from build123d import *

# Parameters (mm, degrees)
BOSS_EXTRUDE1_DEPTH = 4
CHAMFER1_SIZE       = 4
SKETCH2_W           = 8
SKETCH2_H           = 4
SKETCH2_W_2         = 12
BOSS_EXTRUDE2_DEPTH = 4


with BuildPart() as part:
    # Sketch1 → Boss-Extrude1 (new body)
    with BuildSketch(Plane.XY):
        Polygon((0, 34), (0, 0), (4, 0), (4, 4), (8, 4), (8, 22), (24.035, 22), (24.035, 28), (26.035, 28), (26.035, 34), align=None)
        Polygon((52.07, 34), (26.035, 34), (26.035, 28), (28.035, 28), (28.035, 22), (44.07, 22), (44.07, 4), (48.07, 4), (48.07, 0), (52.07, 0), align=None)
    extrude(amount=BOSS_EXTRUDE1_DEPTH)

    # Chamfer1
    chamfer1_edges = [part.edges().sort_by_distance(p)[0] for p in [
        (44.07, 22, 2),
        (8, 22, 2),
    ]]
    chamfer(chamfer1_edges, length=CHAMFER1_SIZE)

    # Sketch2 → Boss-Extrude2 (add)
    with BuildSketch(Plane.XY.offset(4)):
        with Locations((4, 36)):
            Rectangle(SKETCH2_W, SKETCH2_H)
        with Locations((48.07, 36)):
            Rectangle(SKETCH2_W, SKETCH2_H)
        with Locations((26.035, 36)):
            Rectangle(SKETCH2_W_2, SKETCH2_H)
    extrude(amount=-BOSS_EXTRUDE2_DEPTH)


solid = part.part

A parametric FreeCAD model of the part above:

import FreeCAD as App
import Part
import Sketcher


def edges_at(feature, points):
    """Names of the edges that pass closest to the given points."""
    edges = feature.Shape.Edges
    near = lambda p: min(range(len(edges)), key=lambda i: edges[i].distToShape(Part.Vertex(*p))[0])
    return sorted({f"Edge{near(p) + 1}" for p in points})

doc = App.newDocument("Part")
body = doc.addObject("PartDesign::Body", "Body")

sketch1 = body.newObject("Sketcher::SketchObject", "Sketch")
sketch1.AttachmentSupport = (doc.getObject("XY_Plane"), [""])
sketch1.MapMode = "FlatFace"
sketch1.addGeometry([
    Part.LineSegment(App.Vector(0, 34, 0), App.Vector(0, 0, 0)),
    Part.LineSegment(App.Vector(0, 0, 0), App.Vector(4, 0, 0)),
    Part.LineSegment(App.Vector(4, 0, 0), App.Vector(4, 4, 0)),
    Part.LineSegment(App.Vector(4, 4, 0), App.Vector(8, 4, 0)),
    Part.LineSegment(App.Vector(8, 4, 0), App.Vector(8, 22, 0)),
    Part.LineSegment(App.Vector(8, 22, 0), App.Vector(24, 22, 0)),
    Part.LineSegment(App.Vector(24, 22, 0), App.Vector(24, 28, 0)),
    Part.LineSegment(App.Vector(24, 28, 0), App.Vector(28, 28, 0)),
    Part.LineSegment(App.Vector(28, 28, 0), App.Vector(28, 22, 0)),
    Part.LineSegment(App.Vector(28, 22, 0), App.Vector(44.1, 22, 0)),
    Part.LineSegment(App.Vector(44.1, 22, 0), App.Vector(44.1, 4, 0)),
    Part.LineSegment(App.Vector(44.1, 4, 0), App.Vector(48.1, 4, 0)),
    Part.LineSegment(App.Vector(48.1, 4, 0), App.Vector(48.1, 0, 0)),
    Part.LineSegment(App.Vector(48.1, 0, 0), App.Vector(52.1, 0, 0)),
    Part.LineSegment(App.Vector(52.1, 0, 0), App.Vector(52.1, 34, 0)),
    Part.LineSegment(App.Vector(52.1, 34, 0), App.Vector(0, 34, 0)),
], False)
sketch1.addConstraint([
    Sketcher.Constraint("Coincident", 0, 2, 1, 1),
    Sketcher.Constraint("Coincident", 1, 2, 2, 1),
    Sketcher.Constraint("Coincident", 2, 2, 3, 1),
    Sketcher.Constraint("Coincident", 3, 2, 4, 1),
    Sketcher.Constraint("Coincident", 4, 2, 5, 1),
    Sketcher.Constraint("Coincident", 5, 2, 6, 1),
    Sketcher.Constraint("Coincident", 6, 2, 7, 1),
    Sketcher.Constraint("Coincident", 7, 2, 8, 1),
    Sketcher.Constraint("Coincident", 8, 2, 9, 1),
    Sketcher.Constraint("Coincident", 9, 2, 10, 1),
    Sketcher.Constraint("Coincident", 10, 2, 11, 1),
    Sketcher.Constraint("Coincident", 11, 2, 12, 1),
    Sketcher.Constraint("Coincident", 12, 2, 13, 1),
    Sketcher.Constraint("Coincident", 13, 2, 14, 1),
    Sketcher.Constraint("Coincident", 14, 2, 15, 1),
    Sketcher.Constraint("Coincident", 15, 2, 0, 1),
    Sketcher.Constraint("Vertical", 0),
    Sketcher.Constraint("Horizontal", 1),
    Sketcher.Constraint("Vertical", 2),
    Sketcher.Constraint("Horizontal", 3),
    Sketcher.Constraint("Vertical", 4),
    Sketcher.Constraint("Horizontal", 5),
    Sketcher.Constraint("Vertical", 6),
    Sketcher.Constraint("Horizontal", 7),
    Sketcher.Constraint("Vertical", 8),
    Sketcher.Constraint("Horizontal", 9),
    Sketcher.Constraint("Vertical", 10),
    Sketcher.Constraint("Horizontal", 11),
    Sketcher.Constraint("Vertical", 12),
    Sketcher.Constraint("Horizontal", 13),
    Sketcher.Constraint("Vertical", 14),
    Sketcher.Constraint("Horizontal", 15),
    Sketcher.Constraint("Coincident", 0, 2, -1, 1),
    Sketcher.Constraint("PointOnObject", 12, 2, -1),
    Sketcher.Constraint("Horizontal", 5, 2, 8, 2),
    Sketcher.Constraint("Horizontal", 3, 2, 10, 2),
    Sketcher.Constraint("Equal", 1, 3),
    Sketcher.Constraint("Equal", 3, 7),
    Sketcher.Constraint("Equal", 5, 9),
    Sketcher.Constraint("Equal", 7, 11),
    Sketcher.Constraint("Equal", 11, 13),
    Sketcher.Constraint("Equal", 13, 2),
    Sketcher.Constraint("DistanceX", 1, 1, 1, 2, 4.0),
    Sketcher.Constraint("DistanceY", 0, 2, 0, 1, 34.0),
    Sketcher.Constraint("DistanceY", 4, 1, 4, 2, 18.0),
    Sketcher.Constraint("DistanceY", 6, 1, 6, 2, 6.0),
    Sketcher.Constraint("DistanceX", 15, 2, 15, 1, 52.07),
])
pad1 = body.newObject("PartDesign::Pad", "Pad")
pad1.Profile = sketch1
pad1.Length = 4
doc.recompute()

chamfer = body.newObject("PartDesign::Chamfer", "Chamfer")
chamfer.Base = (pad1, edges_at(pad1, [(44.07, 22, 2), (8, 22, 2)]))
chamfer.Size = 4

sketch2 = body.newObject("Sketcher::SketchObject", "Sketch001")
sketch2.AttachmentSupport = (doc.getObject("XY_Plane"), [""])
sketch2.MapMode = "FlatFace"
sketch2.AttachmentOffset = App.Placement(App.Vector(0, 0, 4), App.Rotation())
sketch2.addGeometry([
    Part.LineSegment(App.Vector(0, 38, 0), App.Vector(0, 34, 0)),
    Part.LineSegment(App.Vector(0, 34, 0), App.Vector(8, 34, 0)),
    Part.LineSegment(App.Vector(8, 34, 0), App.Vector(8, 38, 0)),
    Part.LineSegment(App.Vector(8, 38, 0), App.Vector(0, 38, 0)),
    Part.LineSegment(App.Vector(44.1, 38, 0), App.Vector(44.1, 34, 0)),
    Part.LineSegment(App.Vector(44.1, 34, 0), App.Vector(52.1, 34, 0)),
    Part.LineSegment(App.Vector(52.1, 34, 0), App.Vector(52.1, 38, 0)),
    Part.LineSegment(App.Vector(52.1, 38, 0), App.Vector(44.1, 38, 0)),
    Part.LineSegment(App.Vector(20, 38, 0), App.Vector(20, 34, 0)),
    Part.LineSegment(App.Vector(20, 34, 0), App.Vector(32, 34, 0)),
    Part.LineSegment(App.Vector(32, 34, 0), App.Vector(32, 38, 0)),
    Part.LineSegment(App.Vector(32, 38, 0), App.Vector(20, 38, 0)),
], False)
sketch2.addConstraint([
    Sketcher.Constraint("Coincident", 0, 2, 1, 1),
    Sketcher.Constraint("Coincident", 1, 2, 2, 1),
    Sketcher.Constraint("Coincident", 2, 2, 3, 1),
    Sketcher.Constraint("Coincident", 3, 2, 0, 1),
    Sketcher.Constraint("Coincident", 4, 2, 5, 1),
    Sketcher.Constraint("Coincident", 5, 2, 6, 1),
    Sketcher.Constraint("Coincident", 6, 2, 7, 1),
    Sketcher.Constraint("Coincident", 7, 2, 4, 1),
    Sketcher.Constraint("Coincident", 8, 2, 9, 1),
    Sketcher.Constraint("Coincident", 9, 2, 10, 1),
    Sketcher.Constraint("Coincident", 10, 2, 11, 1),
    Sketcher.Constraint("Coincident", 11, 2, 8, 1),
    Sketcher.Constraint("Vertical", 0),
    Sketcher.Constraint("Horizontal", 1),
    Sketcher.Constraint("Vertical", 2),
    Sketcher.Constraint("Horizontal", 3),
    Sketcher.Constraint("Vertical", 4),
    Sketcher.Constraint("Horizontal", 5),
    Sketcher.Constraint("Vertical", 6),
    Sketcher.Constraint("Horizontal", 7),
    Sketcher.Constraint("Vertical", 8),
    Sketcher.Constraint("Horizontal", 9),
    Sketcher.Constraint("Vertical", 10),
    Sketcher.Constraint("Horizontal", 11),
    Sketcher.Constraint("PointOnObject", 0, 2, -2),
    Sketcher.Constraint("Horizontal", 1, 2, 4, 2),
    Sketcher.Constraint("Horizontal", 3, 2, 6, 2),
    Sketcher.Constraint("Horizontal", 5, 2, 8, 2),
    Sketcher.Constraint("Horizontal", 7, 2, 10, 2),
    Sketcher.Constraint("Equal", 3, 5),
    Sketcher.Constraint("DistanceX", 1, 1, 1, 2, 8.0),
    Sketcher.Constraint("DistanceX", 9, 1, 9, 2, 12.0),
    Sketcher.Constraint("DistanceY", 0, 2, 0, 1, 4.0),
    Sketcher.Constraint("DistanceY", -1, 1, 0, 2, 34.0),
    Sketcher.Constraint("DistanceX", -1, 1, 4, 2, 44.07),
    Sketcher.Constraint("DistanceX", -1, 1, 8, 2, 20.035),
])
pad2 = body.newObject("PartDesign::Pad", "Pad001")
pad2.Profile = sketch2
pad2.Length = 4
pad2.Reversed = True

doc.recompute()
